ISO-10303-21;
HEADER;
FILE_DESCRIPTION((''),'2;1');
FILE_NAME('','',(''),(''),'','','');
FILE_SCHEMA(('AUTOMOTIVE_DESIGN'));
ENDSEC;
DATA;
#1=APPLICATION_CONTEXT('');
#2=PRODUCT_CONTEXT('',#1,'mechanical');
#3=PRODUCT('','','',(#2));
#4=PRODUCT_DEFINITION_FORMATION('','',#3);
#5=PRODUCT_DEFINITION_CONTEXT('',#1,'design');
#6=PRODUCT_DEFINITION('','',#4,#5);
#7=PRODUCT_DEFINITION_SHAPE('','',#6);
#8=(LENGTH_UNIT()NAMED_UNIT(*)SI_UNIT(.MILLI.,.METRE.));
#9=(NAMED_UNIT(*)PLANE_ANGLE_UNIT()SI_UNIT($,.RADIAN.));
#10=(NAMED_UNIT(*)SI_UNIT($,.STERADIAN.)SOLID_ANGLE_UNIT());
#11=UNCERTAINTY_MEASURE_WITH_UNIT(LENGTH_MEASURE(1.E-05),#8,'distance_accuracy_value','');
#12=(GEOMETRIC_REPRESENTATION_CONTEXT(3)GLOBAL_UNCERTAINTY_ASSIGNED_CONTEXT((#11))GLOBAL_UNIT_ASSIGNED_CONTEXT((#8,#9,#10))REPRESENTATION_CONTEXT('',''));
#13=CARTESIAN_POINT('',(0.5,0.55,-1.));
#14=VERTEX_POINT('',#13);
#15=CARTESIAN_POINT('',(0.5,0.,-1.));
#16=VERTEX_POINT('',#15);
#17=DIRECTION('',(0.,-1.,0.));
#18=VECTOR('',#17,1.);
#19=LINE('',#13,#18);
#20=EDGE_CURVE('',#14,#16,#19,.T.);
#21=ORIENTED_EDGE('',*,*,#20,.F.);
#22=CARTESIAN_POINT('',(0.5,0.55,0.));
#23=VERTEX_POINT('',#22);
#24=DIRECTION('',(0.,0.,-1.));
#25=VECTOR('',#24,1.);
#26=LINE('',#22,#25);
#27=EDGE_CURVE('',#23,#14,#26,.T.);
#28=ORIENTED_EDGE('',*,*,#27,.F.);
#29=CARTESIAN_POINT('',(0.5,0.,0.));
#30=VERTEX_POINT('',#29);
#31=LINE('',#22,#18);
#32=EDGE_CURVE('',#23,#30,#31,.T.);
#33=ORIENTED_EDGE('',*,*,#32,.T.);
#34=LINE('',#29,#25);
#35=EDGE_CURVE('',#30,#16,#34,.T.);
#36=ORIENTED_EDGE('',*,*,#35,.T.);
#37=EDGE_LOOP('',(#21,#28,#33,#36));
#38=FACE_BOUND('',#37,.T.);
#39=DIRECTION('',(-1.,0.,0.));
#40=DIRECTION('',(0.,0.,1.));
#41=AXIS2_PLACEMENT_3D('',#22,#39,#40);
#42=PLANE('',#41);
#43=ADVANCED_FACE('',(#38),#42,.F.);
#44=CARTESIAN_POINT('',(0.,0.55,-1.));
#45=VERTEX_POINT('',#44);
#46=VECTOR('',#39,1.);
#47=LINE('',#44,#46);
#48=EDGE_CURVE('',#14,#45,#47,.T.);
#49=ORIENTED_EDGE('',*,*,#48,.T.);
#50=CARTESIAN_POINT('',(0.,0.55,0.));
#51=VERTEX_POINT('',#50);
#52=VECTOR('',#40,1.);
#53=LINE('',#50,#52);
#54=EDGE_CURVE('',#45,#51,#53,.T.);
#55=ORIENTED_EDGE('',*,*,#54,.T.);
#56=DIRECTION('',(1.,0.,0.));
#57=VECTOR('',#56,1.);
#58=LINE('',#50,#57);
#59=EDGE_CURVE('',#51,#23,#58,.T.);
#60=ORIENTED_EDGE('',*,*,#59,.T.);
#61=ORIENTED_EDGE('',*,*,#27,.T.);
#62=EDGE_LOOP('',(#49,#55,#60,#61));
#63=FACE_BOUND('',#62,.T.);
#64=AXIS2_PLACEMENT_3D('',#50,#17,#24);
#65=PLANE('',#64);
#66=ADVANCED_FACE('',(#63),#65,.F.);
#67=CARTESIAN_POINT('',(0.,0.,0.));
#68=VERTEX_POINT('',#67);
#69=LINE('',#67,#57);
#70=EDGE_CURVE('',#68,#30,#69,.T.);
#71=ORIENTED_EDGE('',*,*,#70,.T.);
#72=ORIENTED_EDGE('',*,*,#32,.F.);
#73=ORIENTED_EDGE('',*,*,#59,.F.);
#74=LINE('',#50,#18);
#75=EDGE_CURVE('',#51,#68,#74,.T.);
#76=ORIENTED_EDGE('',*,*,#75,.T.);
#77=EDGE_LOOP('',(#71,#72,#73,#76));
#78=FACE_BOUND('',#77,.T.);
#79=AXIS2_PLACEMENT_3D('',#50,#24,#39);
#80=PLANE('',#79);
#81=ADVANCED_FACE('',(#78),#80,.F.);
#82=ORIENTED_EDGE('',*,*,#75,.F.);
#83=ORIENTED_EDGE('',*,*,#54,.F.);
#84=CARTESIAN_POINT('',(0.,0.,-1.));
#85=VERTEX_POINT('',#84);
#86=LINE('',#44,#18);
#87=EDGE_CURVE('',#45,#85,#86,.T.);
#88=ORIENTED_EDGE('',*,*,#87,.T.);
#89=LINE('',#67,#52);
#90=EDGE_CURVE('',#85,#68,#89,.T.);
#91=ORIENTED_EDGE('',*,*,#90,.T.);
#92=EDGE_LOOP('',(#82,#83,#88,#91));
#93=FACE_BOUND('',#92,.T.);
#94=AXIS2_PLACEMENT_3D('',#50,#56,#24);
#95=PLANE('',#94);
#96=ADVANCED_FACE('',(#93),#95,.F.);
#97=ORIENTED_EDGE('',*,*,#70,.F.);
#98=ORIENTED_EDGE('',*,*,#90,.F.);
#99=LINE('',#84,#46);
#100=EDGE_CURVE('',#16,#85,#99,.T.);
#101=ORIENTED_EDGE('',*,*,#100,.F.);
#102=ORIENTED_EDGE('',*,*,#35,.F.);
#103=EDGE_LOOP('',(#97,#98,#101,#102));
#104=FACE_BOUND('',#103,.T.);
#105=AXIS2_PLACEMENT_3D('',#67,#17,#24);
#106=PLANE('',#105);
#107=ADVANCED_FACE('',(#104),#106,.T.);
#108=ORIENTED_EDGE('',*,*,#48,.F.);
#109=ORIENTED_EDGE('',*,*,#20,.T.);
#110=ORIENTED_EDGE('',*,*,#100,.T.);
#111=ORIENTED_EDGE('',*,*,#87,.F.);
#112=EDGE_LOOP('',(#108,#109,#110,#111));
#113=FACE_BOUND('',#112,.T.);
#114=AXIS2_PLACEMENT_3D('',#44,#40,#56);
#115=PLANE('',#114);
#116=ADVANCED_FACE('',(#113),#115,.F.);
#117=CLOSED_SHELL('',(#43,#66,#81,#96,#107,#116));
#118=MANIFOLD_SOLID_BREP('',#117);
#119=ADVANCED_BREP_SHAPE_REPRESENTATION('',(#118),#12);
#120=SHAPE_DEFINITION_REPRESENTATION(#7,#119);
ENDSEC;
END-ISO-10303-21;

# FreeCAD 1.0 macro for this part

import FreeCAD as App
import Part
import Sketcher


def add_polygon(sketch, points):
    """Adds a closed chain of lines whose ends are joined by coincident constraints."""
    first, n = sketch.GeometryCount, len(points)
    for a, b in zip(points, points[1:] + points[:1]):
        sketch.addGeometry(Part.LineSegment(App.Vector(*a, 0), App.Vector(*b, 0)), False)
    for i in range(n):
        sketch.addConstraint(Sketcher.Constraint("Coincident", first + i, 2, first + (i + 1) % n, 1))

doc = App.newDocument("Part")
body = doc.addObject("PartDesign::Body", "Body")

sketch1 = doc.addObject("Sketcher::SketchObject", "Sketch")
body.addObject(sketch1)
sketch1.AttachmentSupport = (doc.XZ_Plane, [""])
sketch1.MapMode = "FlatFace"
add_polygon(sketch1, [(0, -1), (0, 0), (0.5, 0), (0.5, -1)])
sketch1.addConstraint(Sketcher.Constraint("Vertical", 0))
sketch1.addConstraint(Sketcher.Constraint("Horizontal", 1))
sketch1.addConstraint(Sketcher.Constraint("Vertical", 2))
sketch1.addConstraint(Sketcher.Constraint("Horizontal", 3))
sketch1.addConstraint(Sketcher.Constraint("Coincident", 0, 2, -1, 1))
sketch1.addConstraint(Sketcher.Constraint("DistanceY", 0, 1, 0, 2, 1.0))
sketch1.addConstraint(Sketcher.Constraint("DistanceX", 1, 1, 1, 2, 0.5))
pad1 = doc.addObject("PartDesign::Pad", "Pad")
body.addObject(pad1)
pad1.Profile = sketch1
pad1.Length = 0.55
pad1.Reversed = True

doc.recompute()
